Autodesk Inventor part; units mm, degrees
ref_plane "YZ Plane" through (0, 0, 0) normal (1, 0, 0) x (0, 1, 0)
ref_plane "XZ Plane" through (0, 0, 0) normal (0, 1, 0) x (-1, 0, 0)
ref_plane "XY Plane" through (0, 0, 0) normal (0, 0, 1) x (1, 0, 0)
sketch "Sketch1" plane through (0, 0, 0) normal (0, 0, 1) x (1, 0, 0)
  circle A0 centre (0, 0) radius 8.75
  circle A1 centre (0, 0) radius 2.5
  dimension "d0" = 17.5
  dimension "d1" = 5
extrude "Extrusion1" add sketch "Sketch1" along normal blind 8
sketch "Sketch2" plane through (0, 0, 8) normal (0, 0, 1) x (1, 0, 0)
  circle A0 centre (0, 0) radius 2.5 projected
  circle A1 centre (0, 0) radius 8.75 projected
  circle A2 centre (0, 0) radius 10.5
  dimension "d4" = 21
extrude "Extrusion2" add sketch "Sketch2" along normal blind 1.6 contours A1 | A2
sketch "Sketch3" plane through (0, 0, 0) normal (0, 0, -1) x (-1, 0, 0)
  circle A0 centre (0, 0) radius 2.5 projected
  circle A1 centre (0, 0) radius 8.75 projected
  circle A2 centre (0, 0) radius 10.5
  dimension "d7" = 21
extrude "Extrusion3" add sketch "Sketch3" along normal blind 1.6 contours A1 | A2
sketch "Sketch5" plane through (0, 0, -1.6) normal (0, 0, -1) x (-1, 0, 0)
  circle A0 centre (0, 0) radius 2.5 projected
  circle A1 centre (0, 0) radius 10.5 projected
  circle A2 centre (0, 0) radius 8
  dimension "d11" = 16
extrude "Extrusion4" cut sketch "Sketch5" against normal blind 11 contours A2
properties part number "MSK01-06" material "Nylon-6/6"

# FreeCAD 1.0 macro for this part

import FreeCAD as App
import Part
import Sketcher

doc = App.newDocument("Part")
body = doc.addObject("PartDesign::Body", "Body")

# Sketch on XY plane
sketch1 = body.newObject("Sketcher::SketchObject", "Sketch")
sketch1.AttachmentSupport = (doc.getObject("XY_Plane"), [""])
sketch1.MapMode = "FlatFace"
sketch1.addGeometry(Part.Circle(App.Vector(0, 0, 0), App.Vector(0, 0, 1), 8.8), False)
sketch1.addGeometry(Part.Circle(App.Vector(0, 0, 0), App.Vector(0, 0, 1), 2.5), False)
sketch1.addConstraint(Sketcher.Constraint("Coincident", 0, 3, -1, 1))
sketch1.addConstraint(Sketcher.Constraint("Coincident", 1, 3, -1, 1))
sketch1.addConstraint(Sketcher.Constraint("Diameter", 1, 5.0))
sketch1.addConstraint(Sketcher.Constraint("Diameter", 0, 17.5))
pad1 = body.newObject("PartDesign::Pad", "Pad")
pad1.Profile = sketch1
pad1.Length = 8

# Sketch on XY plane
sketch2 = body.newObject("Sketcher::SketchObject", "Sketch001")
sketch2.AttachmentSupport = (doc.getObject("XY_Plane"), [""])
sketch2.MapMode = "FlatFace"
sketch2.AttachmentOffset = App.Placement(App.Vector(0, 0, 8), App.Rotation())
sketch2.addGeometry(Part.Circle(App.Vector(0, 0, 0), App.Vector(0, 0, 1), 10.5), False)
sketch2.addGeometry(Part.Circle(App.Vector(0, 0, 0), App.Vector(0, 0, 1), 2.5), False)
sketch2.addConstraint(Sketcher.Constraint("Coincident", 0, 3, -1, 1))
sketch2.addConstraint(Sketcher.Constraint("Coincident", 1, 3, -1, 1))
sketch2.addConstraint(Sketcher.Constraint("Diameter", 0, 21.0))
sketch2.addConstraint(Sketcher.Constraint("Diameter", 1, 5.0))
pad2 = body.newObject("PartDesign::Pad", "Pad001")
pad2.Profile = sketch2
pad2.Length = 1.6

# Sketch on XY plane
sketch3 = body.newObject("Sketcher::SketchObject", "Sketch002")
sketch3.AttachmentSupport = (doc.getObject("XY_Plane"), [""])
sketch3.MapMode = "FlatFace"
sketch3.addGeometry(Part.Circle(App.Vector(0, 0, 0), App.Vector(0, 0, 1), 10.5), False)
sketch3.addGeometry(Part.Circle(App.Vector(0, 0, 0), App.Vector(0, 0, 1), 2.5), False)
sketch3.addConstraint(Sketcher.Constraint("Coincident", 0, 3, -1, 1))
sketch3.addConstraint(Sketcher.Constraint("Coincident", 1, 3, -1, 1))
sketch3.addConstraint(Sketcher.Constraint("Diameter", 0, 21.0))
sketch3.addConstraint(Sketcher.Constraint("Diameter", 1, 5.0))
pad3 = body.newObject("PartDesign::Pad", "Pad002")
pad3.Profile = sketch3
pad3.Length = 1.6
pad3.Reversed = True

# Sketch on XY plane
sketch4 = body.newObject("Sketcher::SketchObject", "Sketch003")
sketch4.AttachmentSupport = (doc.getObject("XY_Plane"), [""])
sketch4.MapMode = "FlatFace"
sketch4.AttachmentOffset = App.Placement(App.Vector(0, 0, -1.6), App.Rotation())
sketch4.addGeometry(Part.Circle(App.Vector(0, 0, 0), App.Vector(0, 0, 1), 8), False)
sketch4.addGeometry(Part.Circle(App.Vector(0, 0, 0), App.Vector(0, 0, 1), 2.5), False)
sketch4.addConstraint(Sketcher.Constraint("Coincident", 0, 3, -1, 1))
sketch4.addConstraint(Sketcher.Constraint("Coincident", 1, 3, -1, 1))
sketch4.addConstraint(Sketcher.Constraint("Diameter", 0, 16.0))
sketch4.addConstraint(Sketcher.Constraint("Diameter", 1, 5.0))
pocket1 = body.newObject("PartDesign::Pocket", "Pocket")
pocket1.Profile = sketch4
pocket1.Length = 11
pocket1.Reversed = True

doc.recompute()
